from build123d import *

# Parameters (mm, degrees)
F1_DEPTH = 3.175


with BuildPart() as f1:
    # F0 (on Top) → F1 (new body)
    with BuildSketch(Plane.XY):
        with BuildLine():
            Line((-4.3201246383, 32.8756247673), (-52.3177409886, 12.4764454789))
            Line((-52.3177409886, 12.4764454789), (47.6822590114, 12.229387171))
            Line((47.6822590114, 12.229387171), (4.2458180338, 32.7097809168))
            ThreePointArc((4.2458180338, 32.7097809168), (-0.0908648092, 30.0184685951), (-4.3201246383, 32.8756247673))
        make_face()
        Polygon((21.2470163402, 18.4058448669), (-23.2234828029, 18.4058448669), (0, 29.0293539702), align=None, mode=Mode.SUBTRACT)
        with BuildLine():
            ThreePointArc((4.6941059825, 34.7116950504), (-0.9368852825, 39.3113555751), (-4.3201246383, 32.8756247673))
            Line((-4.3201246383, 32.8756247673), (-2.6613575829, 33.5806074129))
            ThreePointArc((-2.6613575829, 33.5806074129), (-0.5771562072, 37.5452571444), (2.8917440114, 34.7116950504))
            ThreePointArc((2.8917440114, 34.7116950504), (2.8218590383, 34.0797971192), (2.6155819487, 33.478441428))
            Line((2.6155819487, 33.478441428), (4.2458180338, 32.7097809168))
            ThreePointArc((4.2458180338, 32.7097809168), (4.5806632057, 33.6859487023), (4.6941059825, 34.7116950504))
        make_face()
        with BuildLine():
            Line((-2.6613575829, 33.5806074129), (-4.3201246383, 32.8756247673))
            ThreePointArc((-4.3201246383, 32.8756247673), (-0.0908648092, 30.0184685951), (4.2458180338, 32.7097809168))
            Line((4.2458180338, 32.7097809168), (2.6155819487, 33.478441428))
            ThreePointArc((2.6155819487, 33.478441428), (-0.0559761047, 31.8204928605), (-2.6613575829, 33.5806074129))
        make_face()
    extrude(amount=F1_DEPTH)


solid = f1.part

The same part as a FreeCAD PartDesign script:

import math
import FreeCAD as App
import Part
import Sketcher
from FreeCAD import Vector
Q = App.Units.Quantity


def add_polygon(sketch, points):
    """Adds a closed chain of lines whose ends are joined by coincident constraints."""
    first, n = sketch.GeometryCount, len(points)
    for a, b in zip(points, points[1:] + points[:1]):
        sketch.addGeometry(Part.LineSegment(App.Vector(*a, 0), App.Vector(*b, 0)), False)
    for i in range(n):
        sketch.addConstraint(Sketcher.Constraint("Coincident", first + i, 2, first + (i + 1) % n, 1))

doc = App.newDocument("Part")
params = doc.addObject("Spreadsheet::Sheet", "Params")
for row, (alias, value) in enumerate([
    ("pad1_length", "0.125 in"),
], start=1):
    params.set(f"A{row}", alias)
    params.set(f"B{row}", "=" + value)
    params.setAlias(f"B{row}", alias)

body = doc.addObject("PartDesign::Body", "Body")

# Sketch on XY plane
sketch1 = body.newObject("Sketcher::SketchObject", "Sketch")
sketch1.AttachmentSupport = (doc.getObject("XY_Plane"), [""])
sketch1.MapMode = "FlatFace"
sketch1.addGeometry(Part.LineSegment(Vector(-4.320125, 32.875625, 0), Vector(-52.317741, 12.476445, 0)), False)  # 0
sketch1.addGeometry(Part.LineSegment(Vector(-52.317741, 12.476445, 0), Vector(47.682259, 12.229387, 0)), False)  # 1
sketch1.addGeometry(Part.LineSegment(Vector(47.682259, 12.229387, 0), Vector(4.245818, 32.709781, 0)), False)  # 2
sketch1.addGeometry(Part.ArcOfCircle(Part.Circle(Vector(0, 34.711695, 0), Vector(0, 0, 1), 4.694106), math.radians(-25.243998), math.radians(0)), False)  # 3
sketch1.addGeometry(Part.ArcOfCircle(Part.Circle(Vector(0, 34.711695, 0), Vector(0, 0, 1), 4.694106), math.radians(0), math.radians(203.025686)), False)  # 4
add_polygon(sketch1, [(0, 29.029354), (21.247016, 18.405845), (-23.223483, 18.405845)])  # lines 5-7
sketch1.addGeometry(Part.ArcOfCircle(Part.Circle(Vector(0, 34.711695, 0), Vector(0, 0, 1), 2.891744), math.radians(-156.974314), math.radians(-25.243998)), False)  # 8
sketch1.addGeometry(Part.ArcOfCircle(Part.Circle(Vector(0, 34.711695, 0), Vector(0, 0, 1), 2.891744), math.radians(0), math.radians(203.025686)), False)  # 9
sketch1.addGeometry(Part.ArcOfCircle(Part.Circle(Vector(0, 34.711695, 0), Vector(0, 0, 1), 2.891744), math.radians(-25.243998), math.radians(0)), False)  # 10
sketch1.addConstraint([
    Sketcher.Constraint("Coincident", 0, 2, 1, 1),
    Sketcher.Constraint("Coincident", 1, 2, 2, 1),
    Sketcher.Constraint("Coincident", 2, 2, 3, 1),
    Sketcher.Constraint("Tangent", 3, 2, 4, 1),
    Sketcher.Constraint("Coincident", 4, 2, 0, 1),
    Sketcher.Constraint("Tangent", 8, 1, 9, 2),
    Sketcher.Constraint("Tangent", 9, 1, 10, 2),
    Sketcher.Constraint("Tangent", 10, 1, 8, 2),
    Sketcher.Constraint("Horizontal", 6),
    Sketcher.Constraint("Coincident", 8, 3, 3, 3),
    Sketcher.Constraint("Equal", 3, 4),
    Sketcher.Constraint("PointOnObject", 3, 3, -2),
    Sketcher.Constraint("PointOnObject", 7, 2, -2),
    Sketcher.Constraint("Horizontal", 10, 3, 3, 2),
    Sketcher.Constraint("Horizontal", 3, 2, 9, 1),
    Sketcher.Constraint("DistanceX", 6, 2, 6, 1, Q("44.470499 mm")),
    Sketcher.Constraint("Radius", 3, Q("4.694106 mm")),
    Sketcher.Constraint("Radius", 8, Q("2.891744 mm")),
    Sketcher.Constraint("DistanceX", 2, 2, 5, 2, Q("17.001198 mm")),
    Sketcher.Constraint("Distance", 0, Q("52.152638 mm")),
    Sketcher.Constraint("Distance", 2, Q("48.022609 mm")),
    Sketcher.Constraint("DistanceX", 0, 2, -1, 1, Q("52.317741 mm")),
    Sketcher.Constraint("DistanceX", -1, 1, 1, 2, Q("47.682259 mm")),
    Sketcher.Constraint("DistanceX", -1, 1, 2, 2, Q("4.245818 mm")),
    Sketcher.Constraint("DistanceY", -1, 1, 2, 2, Q("32.709781 mm")),
    Sketcher.Constraint("DistanceX", -1, 1, 10, 1, Q("2.615582 mm")),
    Sketcher.Constraint("DistanceY", 4, 2, 4, 3, Q("1.83607 mm")),
    Sketcher.Constraint("DistanceY", 5, 2, 3, 2, Q("16.30585 mm")),
    Sketcher.Constraint("DistanceY", 7, 2, 4, 3, Q("5.682341 mm")),
    Sketcher.Constraint("DistanceX", 8, 1, -1, 1, Q("2.661358 mm")),
])
pad1 = body.newObject("PartDesign::Pad", "Pad")
pad1.Profile = sketch1
pad1.setExpression("Length", "Params.pad1_length")

doc.recompute()
